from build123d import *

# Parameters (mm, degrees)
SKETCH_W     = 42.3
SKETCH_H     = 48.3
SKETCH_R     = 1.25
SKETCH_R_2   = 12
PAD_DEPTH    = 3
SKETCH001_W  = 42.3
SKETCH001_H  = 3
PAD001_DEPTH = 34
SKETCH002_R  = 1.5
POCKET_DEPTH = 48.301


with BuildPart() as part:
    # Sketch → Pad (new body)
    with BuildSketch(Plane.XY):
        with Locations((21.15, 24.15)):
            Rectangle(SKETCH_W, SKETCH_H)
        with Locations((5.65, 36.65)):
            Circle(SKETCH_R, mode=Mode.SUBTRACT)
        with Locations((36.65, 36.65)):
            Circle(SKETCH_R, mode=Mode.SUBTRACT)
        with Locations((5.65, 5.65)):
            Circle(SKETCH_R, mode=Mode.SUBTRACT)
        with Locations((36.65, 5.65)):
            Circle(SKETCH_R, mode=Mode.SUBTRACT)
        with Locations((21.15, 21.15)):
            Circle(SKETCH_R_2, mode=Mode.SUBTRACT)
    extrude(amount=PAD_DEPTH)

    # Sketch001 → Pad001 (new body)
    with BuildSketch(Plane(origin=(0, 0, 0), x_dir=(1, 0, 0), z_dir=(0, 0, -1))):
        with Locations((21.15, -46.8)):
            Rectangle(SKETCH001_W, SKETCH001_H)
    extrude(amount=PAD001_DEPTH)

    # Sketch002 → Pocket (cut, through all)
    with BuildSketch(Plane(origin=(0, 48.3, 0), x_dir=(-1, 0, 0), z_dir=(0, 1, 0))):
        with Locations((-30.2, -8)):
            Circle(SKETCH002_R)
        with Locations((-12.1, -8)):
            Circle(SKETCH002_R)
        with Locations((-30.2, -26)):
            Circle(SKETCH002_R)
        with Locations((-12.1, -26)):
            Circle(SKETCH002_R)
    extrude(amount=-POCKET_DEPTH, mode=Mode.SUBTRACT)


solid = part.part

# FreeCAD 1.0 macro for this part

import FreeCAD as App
import Part
import Sketcher
from FreeCAD import Vector

doc = App.newDocument("Part")
body = doc.addObject("PartDesign::Body", "Body")

# Sketch on XY plane
sketch1 = body.newObject("Sketcher::SketchObject", "Sketch")
sketch1.AttachmentSupport = (doc.getObject("XY_Plane"), [""])
sketch1.MapMode = "FlatFace"
sketch1.addGeometry([
    Part.LineSegment(Vector(0, 48.3, 0), Vector(0, 0, 0)),  # 0
    Part.LineSegment(Vector(0, 0, 0), Vector(42.3, 0, 0)),  # 1
    Part.LineSegment(Vector(42.3, 0, 0), Vector(42.3, 48.3, 0)),  # 2
    Part.LineSegment(Vector(42.3, 48.3, 0), Vector(0, 48.3, 0)),  # 3
    Part.Circle(Vector(5.7, 5.7, 0), Vector(0, 0, 1), 1.2),  # 4
    Part.Circle(Vector(36.6, 5.7, 0), Vector(0, 0, 1), 1.2),  # 5
    Part.Circle(Vector(5.7, 36.6, 0), Vector(0, 0, 1), 1.2),  # 6
    Part.Circle(Vector(21.1, 21.1, 0), Vector(0, 0, 1), 12),  # 7
    Part.Circle(Vector(36.6, 36.6, 0), Vector(0, 0, 1), 1.2),  # 8
], False)
sketch1.addConstraint([
    Sketcher.Constraint("Coincident", 0, 2, 1, 1),
    Sketcher.Constraint("Coincident", 1, 2, 2, 1),
    Sketcher.Constraint("Coincident", 2, 2, 3, 1),
    Sketcher.Constraint("Coincident", 3, 2, 0, 1),
    Sketcher.Constraint("Vertical", 0),
    Sketcher.Constraint("Horizontal", 1),
    Sketcher.Constraint("Vertical", 2),
    Sketcher.Constraint("Horizontal", 3),
    Sketcher.Constraint("Coincident", 0, 2, -1, 1),
    Sketcher.Constraint("Equal", 4, 5),
    Sketcher.Constraint("Equal", 5, 6),
    Sketcher.Constraint("Equal", 6, 8),
    Sketcher.Constraint("Horizontal", 4, 3, 5, 3),
    Sketcher.Constraint("Horizontal", 6, 3, 8, 3),
    Sketcher.Constraint("Vertical", 4, 3, 6, 3),
    Sketcher.Constraint("Vertical", 5, 3, 8, 3),
    Sketcher.Constraint("Diameter", 7, 24.0),
    Sketcher.Constraint("Diameter", 4, 2.5),
    Sketcher.Constraint("DistanceX", 1, 1, 1, 2, 42.3),
    Sketcher.Constraint("DistanceY", 0, 2, 0, 1, 48.3),
    Sketcher.Constraint("DistanceX", 4, 3, 5, 3, 31.0),
    Sketcher.Constraint("DistanceY", 4, 3, 6, 3, 31.0),
    Sketcher.Constraint("DistanceX", 4, 3, 7, 3, 15.5),
    Sketcher.Constraint("DistanceY", 4, 3, 7, 3, 15.5),
    Sketcher.Constraint("DistanceX", -1, 1, 4, 3, 5.65),
    Sketcher.Constraint("DistanceY", -1, 1, 4, 3, 5.65),
])
pad1 = body.newObject("PartDesign::Pad", "Pad")
pad1.Profile = sketch1
pad1.Length = 3

# Sketch on XY plane
sketch2 = body.newObject("Sketcher::SketchObject", "Sketch001")
sketch2.AttachmentSupport = (doc.getObject("XY_Plane"), [""])
sketch2.MapMode = "FlatFace"
sketch2.addGeometry([
    Part.LineSegment(Vector(0, 45.3, 0), Vector(0, 48.3, 0)),
    Part.LineSegment(Vector(0, 48.3, 0), Vector(42.3, 48.3, 0)),
    Part.LineSegment(Vector(42.3, 48.3, 0), Vector(42.3, 45.3, 0)),
    Part.LineSegment(Vector(42.3, 45.3, 0), Vector(0, 45.3, 0)),
], False)
sketch2.addConstraint([
    Sketcher.Constraint("Coincident", 0, 2, 1, 1),
    Sketcher.Constraint("Coincident", 1, 2, 2, 1),
    Sketcher.Constraint("Coincident", 2, 2, 3, 1),
    Sketcher.Constraint("Coincident", 3, 2, 0, 1),
    Sketcher.Constraint("Vertical", 0),
    Sketcher.Constraint("Horizontal", 1),
    Sketcher.Constraint("Vertical", 2),
    Sketcher.Constraint("Horizontal", 3),
    Sketcher.Constraint("PointOnObject", 0, 2, -2),
    Sketcher.Constraint("DistanceY", 0, 1, 0, 2, 3.0),
    Sketcher.Constraint("DistanceX", 1, 1, 1, 2, 42.3),
    Sketcher.Constraint("DistanceY", -1, 1, 0, 2, 48.3),
])
pad2 = body.newObject("PartDesign::Pad", "Pad001")
pad2.Profile = sketch2
pad2.Length = 34
pad2.Reversed = True

# Sketch on XZ plane
sketch3 = body.newObject("Sketcher::SketchObject", "Sketch002")
sketch3.AttachmentSupport = (doc.getObject("XZ_Plane"), [""])
sketch3.MapMode = "FlatFace"
sketch3.AttachmentOffset = App.Placement(Vector(0, 0, -48.3), App.Rotation())
sketch3.addGeometry([
    Part.Circle(Vector(30.2, -8, 0), Vector(0, 0, 1), 1.5),
    Part.Circle(Vector(12.1, -8, 0), Vector(0, 0, 1), 1.5),
    Part.Circle(Vector(30.2, -26, 0), Vector(0, 0, 1), 1.5),
    Part.Circle(Vector(12.1, -26, 0), Vector(0, 0, 1), 1.5),
], False)
sketch3.addConstraint([
    Sketcher.Constraint("Equal", 0, 1),
    Sketcher.Constraint("Equal", 1, 2),
    Sketcher.Constraint("Equal", 2, 3),
    Sketcher.Constraint("Horizontal", 0, 3, 1, 3),
    Sketcher.Constraint("Horizontal", 2, 3, 3, 3),
    Sketcher.Constraint("Vertical", 0, 3, 2, 3),
    Sketcher.Constraint("Vertical", 1, 3, 3, 3),
    Sketcher.Constraint("Diameter", 0, 3.0),
    Sketcher.Constraint("DistanceY", 0, 3, -1, 1, 8.0),
    Sketcher.Constraint("DistanceY", 2, 3, -1, 1, 26.0),
    Sketcher.Constraint("DistanceX", -1, 1, 0, 3, 30.2),
    Sketcher.Constraint("DistanceX", -1, 1, 1, 3, 12.1),
])
pocket1 = body.newObject("PartDesign::Pocket", "Pocket")
pocket1.Profile = sketch3
pocket1.Type = "ThroughAll"
pocket1.Reversed = True

doc.recompute()
